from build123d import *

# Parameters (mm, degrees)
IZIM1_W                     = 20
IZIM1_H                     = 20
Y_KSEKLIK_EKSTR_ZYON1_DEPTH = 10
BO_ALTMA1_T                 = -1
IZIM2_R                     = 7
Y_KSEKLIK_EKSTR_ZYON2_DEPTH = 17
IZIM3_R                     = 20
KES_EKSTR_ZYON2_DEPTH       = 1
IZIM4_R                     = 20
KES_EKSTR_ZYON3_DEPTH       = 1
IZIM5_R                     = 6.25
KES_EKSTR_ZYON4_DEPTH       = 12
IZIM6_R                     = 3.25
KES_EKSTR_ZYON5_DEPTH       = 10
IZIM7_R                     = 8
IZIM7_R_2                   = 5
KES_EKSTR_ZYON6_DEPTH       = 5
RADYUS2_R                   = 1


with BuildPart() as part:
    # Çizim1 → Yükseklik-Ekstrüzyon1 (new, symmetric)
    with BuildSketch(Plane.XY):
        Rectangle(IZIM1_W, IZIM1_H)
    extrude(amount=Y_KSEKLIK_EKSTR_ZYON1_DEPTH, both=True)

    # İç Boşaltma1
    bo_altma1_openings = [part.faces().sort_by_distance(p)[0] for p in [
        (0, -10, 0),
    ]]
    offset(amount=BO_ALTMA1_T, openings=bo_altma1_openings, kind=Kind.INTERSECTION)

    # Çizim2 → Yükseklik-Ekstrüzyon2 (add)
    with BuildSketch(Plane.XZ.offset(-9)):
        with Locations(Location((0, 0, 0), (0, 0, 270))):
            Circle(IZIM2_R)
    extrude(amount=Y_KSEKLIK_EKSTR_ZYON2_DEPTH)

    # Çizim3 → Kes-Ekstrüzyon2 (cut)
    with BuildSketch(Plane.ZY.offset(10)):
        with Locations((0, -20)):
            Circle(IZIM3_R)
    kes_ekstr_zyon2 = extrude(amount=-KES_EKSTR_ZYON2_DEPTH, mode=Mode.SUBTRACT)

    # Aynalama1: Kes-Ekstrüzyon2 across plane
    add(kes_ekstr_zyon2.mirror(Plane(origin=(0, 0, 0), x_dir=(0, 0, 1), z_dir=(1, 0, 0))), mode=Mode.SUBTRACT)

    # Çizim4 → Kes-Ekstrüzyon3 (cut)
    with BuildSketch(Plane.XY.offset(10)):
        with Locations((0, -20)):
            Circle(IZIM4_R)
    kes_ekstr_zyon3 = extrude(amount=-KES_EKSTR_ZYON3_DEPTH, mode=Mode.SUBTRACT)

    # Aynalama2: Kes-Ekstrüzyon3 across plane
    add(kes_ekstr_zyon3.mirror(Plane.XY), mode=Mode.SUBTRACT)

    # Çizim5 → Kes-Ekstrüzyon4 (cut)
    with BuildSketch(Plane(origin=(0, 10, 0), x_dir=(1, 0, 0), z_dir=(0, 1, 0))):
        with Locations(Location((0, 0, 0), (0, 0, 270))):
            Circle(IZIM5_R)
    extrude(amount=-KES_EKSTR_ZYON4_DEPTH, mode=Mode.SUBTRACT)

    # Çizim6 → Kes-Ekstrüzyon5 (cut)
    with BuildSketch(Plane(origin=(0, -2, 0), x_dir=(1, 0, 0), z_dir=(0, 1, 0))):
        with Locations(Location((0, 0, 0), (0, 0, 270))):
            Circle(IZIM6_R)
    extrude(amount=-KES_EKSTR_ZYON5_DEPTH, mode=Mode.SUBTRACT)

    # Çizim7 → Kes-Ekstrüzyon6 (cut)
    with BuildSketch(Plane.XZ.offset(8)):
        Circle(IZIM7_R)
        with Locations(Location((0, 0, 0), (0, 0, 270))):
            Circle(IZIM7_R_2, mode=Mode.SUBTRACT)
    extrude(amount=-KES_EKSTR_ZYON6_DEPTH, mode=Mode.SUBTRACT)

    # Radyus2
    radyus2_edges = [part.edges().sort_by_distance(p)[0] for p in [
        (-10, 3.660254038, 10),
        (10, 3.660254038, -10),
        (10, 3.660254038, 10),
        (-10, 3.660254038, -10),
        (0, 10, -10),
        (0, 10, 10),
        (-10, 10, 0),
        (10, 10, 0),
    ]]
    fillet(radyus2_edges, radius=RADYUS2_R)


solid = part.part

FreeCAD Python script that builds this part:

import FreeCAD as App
import Part
import Sketcher
Q = App.Units.Quantity


def edges_at(feature, points):
    """Names of the edges that pass closest to the given points."""
    edges = feature.Shape.Edges
    near = lambda p: min(range(len(edges)), key=lambda i: edges[i].distToShape(Part.Vertex(*p))[0])
    return sorted({f"Edge{near(p) + 1}" for p in points})


def faces_at(feature, points):
    """Names of the faces that lie closest to the given points."""
    faces = feature.Shape.Faces
    near = lambda p: min(range(len(faces)), key=lambda i: faces[i].distToShape(Part.Vertex(*p))[0])
    return sorted({f"Face{near(p) + 1}" for p in points})

doc = App.newDocument("Part")
body = doc.addObject("PartDesign::Body", "Body")

# Sketch on XY plane
sketch1 = body.newObject("Sketcher::SketchObject", "Sketch")
sketch1.AttachmentSupport = (doc.getObject("XY_Plane"), [""])
sketch1.MapMode = "FlatFace"
sketch1.addGeometry([
    Part.LineSegment(App.Vector(-10, 10, 0), App.Vector(-10, -10, 0)),
    Part.LineSegment(App.Vector(-10, -10, 0), App.Vector(10, -10, 0)),
    Part.LineSegment(App.Vector(10, -10, 0), App.Vector(10, 10, 0)),
    Part.LineSegment(App.Vector(10, 10, 0), App.Vector(-10, 10, 0)),
], False)
sketch1.addConstraint([
    Sketcher.Constraint("Coincident", 0, 2, 1, 1),
    Sketcher.Constraint("Coincident", 1, 2, 2, 1),
    Sketcher.Constraint("Coincident", 2, 2, 3, 1),
    Sketcher.Constraint("Coincident", 3, 2, 0, 1),
    Sketcher.Constraint("Vertical", 0),
    Sketcher.Constraint("Horizontal", 1),
    Sketcher.Constraint("Vertical", 2),
    Sketcher.Constraint("Horizontal", 3),
    Sketcher.Constraint("Symmetric", 0, 2, 2, 2, -1, 1),
    Sketcher.Constraint("Equal", 3, 0),
    Sketcher.Constraint("DistanceX", 1, 1, 1, 2, Q("20 mm")),
])
pad1 = body.newObject("PartDesign::Pad", "Pad")
pad1.Profile = sketch1
pad1.Length = 20
pad1.Midplane = True
doc.recompute()

thickness = body.newObject("PartDesign::Thickness", "Thickness")
thickness.Base = (pad1, faces_at(pad1, [(0, -10, 0)]))
thickness.Value = 1
thickness.Reversed = True
thickness.Join = "Intersection"

# Sketch on XZ plane
sketch2 = body.newObject("Sketcher::SketchObject", "Sketch001")
sketch2.AttachmentSupport = (doc.getObject("XZ_Plane"), [""])
sketch2.MapMode = "FlatFace"
sketch2.AttachmentOffset = App.Placement(App.Vector(0, 0, -9), App.Rotation())
sketch2.addGeometry(Part.Circle(App.Vector(0, 0, 0), App.Vector(0, 0, 1), 7), False)
sketch2.addConstraint([
    Sketcher.Constraint("Coincident", 0, 3, -1, 1),
    Sketcher.Constraint("Diameter", 0, Q("14 mm")),
])
pad2 = body.newObject("PartDesign::Pad", "Pad001")
pad2.Profile = sketch2
pad2.Length = 17

# Sketch on YZ plane
sketch3 = body.newObject("Sketcher::SketchObject", "Sketch002")
sketch3.AttachmentSupport = (doc.getObject("YZ_Plane"), [""])
sketch3.MapMode = "FlatFace"
sketch3.AttachmentOffset = App.Placement(App.Vector(0, 0, -10), App.Rotation())
sketch3.addGeometry(Part.Circle(App.Vector(-20, 0, 0), App.Vector(0, 0, 1), 20), False)
sketch3.addConstraint([
    Sketcher.Constraint("PointOnObject", 0, 3, -1),
    Sketcher.Constraint("Diameter", 0, Q("40 mm")),
    Sketcher.Constraint("DistanceX", 0, 3, -1, 1, Q("20 mm")),
])
pocket1 = body.newObject("PartDesign::Pocket", "Pocket")
pocket1.Profile = sketch3
pocket1.Length = 1
pocket1.Reversed = True
doc.recompute()

mirrored = body.newObject("PartDesign::Mirrored", "Mirrored")
mirrored.Originals = [pocket1]
mirrored.MirrorPlane = (doc.getObject("YZ_Plane"), [""])
body.Tip = mirrored

# Sketch on XY plane
sketch4 = body.newObject("Sketcher::SketchObject", "Sketch003")
sketch4.AttachmentSupport = (doc.getObject("XY_Plane"), [""])
sketch4.MapMode = "FlatFace"
sketch4.AttachmentOffset = App.Placement(App.Vector(0, 0, 10), App.Rotation())
sketch4.addGeometry(Part.Circle(App.Vector(0, -20, 0), App.Vector(0, 0, 1), 20), False)
sketch4.addConstraint([
    Sketcher.Constraint("PointOnObject", 0, 3, -2),
    Sketcher.Constraint("Diameter", 0, Q("40 mm")),
    Sketcher.Constraint("DistanceY", 0, 3, -1, 1, Q("20 mm")),
])
pocket2 = body.newObject("PartDesign::Pocket", "Pocket001")
pocket2.Profile = sketch4
pocket2.Length = 1
doc.recompute()

mirrored2 = body.newObject("PartDesign::Mirrored", "Mirrored001")
mirrored2.Originals = [pocket2]
mirrored2.MirrorPlane = (doc.getObject("XY_Plane"), [""])
body.Tip = mirrored2

# Sketch on XZ plane
sketch5 = body.newObject("Sketcher::SketchObject", "Sketch004")
sketch5.AttachmentSupport = (doc.getObject("XZ_Plane"), [""])
sketch5.MapMode = "FlatFace"
sketch5.AttachmentOffset = App.Placement(App.Vector(0, 0, -10), App.Rotation())
sketch5.addGeometry(Part.Circle(App.Vector(0, 0, 0), App.Vector(0, 0, 1), 6), False)
sketch5.addConstraint([
    Sketcher.Constraint("Coincident", 0, 3, -1, 1),
    Sketcher.Constraint("Diameter", 0, Q("12.5 mm")),
])
pocket3 = body.newObject("PartDesign::Pocket", "Pocket002")
pocket3.Profile = sketch5
pocket3.Length = 12
pocket3.Reversed = True

# Sketch on XZ plane
sketch6 = body.newObject("Sketcher::SketchObject", "Sketch005")
sketch6.AttachmentSupport = (doc.getObject("XZ_Plane"), [""])
sketch6.MapMode = "FlatFace"
sketch6.AttachmentOffset = App.Placement(App.Vector(0, 0, 2), App.Rotation())
sketch6.addGeometry(Part.Circle(App.Vector(0, 0, 0), App.Vector(0, 0, 1), 3.2), False)
sketch6.addConstraint([
    Sketcher.Constraint("Coincident", 0, 3, -1, 1),
    Sketcher.Constraint("Diameter", 0, Q("6.5 mm")),
])
pocket4 = body.newObject("PartDesign::Pocket", "Pocket003")
pocket4.Profile = sketch6
pocket4.Length = 10
pocket4.Reversed = True

# Sketch on XZ plane
sketch7 = body.newObject("Sketcher::SketchObject", "Sketch006")
sketch7.AttachmentSupport = (doc.getObject("XZ_Plane"), [""])
sketch7.MapMode = "FlatFace"
sketch7.AttachmentOffset = App.Placement(App.Vector(0, 0, 8), App.Rotation())
sketch7.addGeometry([
    Part.Circle(App.Vector(0, 0, 0), App.Vector(0, 0, 1), 8),
    Part.Circle(App.Vector(0, 0, 0), App.Vector(0, 0, 1), 5),
], False)
sketch7.addConstraint([
    Sketcher.Constraint("Coincident", 0, 3, -1, 1),
    Sketcher.Constraint("Coincident", 1, 3, -1, 1),
    Sketcher.Constraint("Diameter", 0, Q("16 mm")),
    Sketcher.Constraint("Diameter", 1, Q("10 mm")),
])
pocket5 = body.newObject("PartDesign::Pocket", "Pocket004")
pocket5.Profile = sketch7
pocket5.Length = 5
doc.recompute()

fillet = body.newObject("PartDesign::Fillet", "Fillet")
fillet.Base = (pocket5, edges_at(pocket5, [
    (-10, 3.66, 10),
    (10, 3.66, -10),
    (10, 3.66, 10),
    (-10, 3.66, -10),
    (0, 10, -10),
    (0, 10, 10),
    (-10, 10, 0),
    (10, 10, 0),
]))
fillet.Radius = 1

doc.recompute()
